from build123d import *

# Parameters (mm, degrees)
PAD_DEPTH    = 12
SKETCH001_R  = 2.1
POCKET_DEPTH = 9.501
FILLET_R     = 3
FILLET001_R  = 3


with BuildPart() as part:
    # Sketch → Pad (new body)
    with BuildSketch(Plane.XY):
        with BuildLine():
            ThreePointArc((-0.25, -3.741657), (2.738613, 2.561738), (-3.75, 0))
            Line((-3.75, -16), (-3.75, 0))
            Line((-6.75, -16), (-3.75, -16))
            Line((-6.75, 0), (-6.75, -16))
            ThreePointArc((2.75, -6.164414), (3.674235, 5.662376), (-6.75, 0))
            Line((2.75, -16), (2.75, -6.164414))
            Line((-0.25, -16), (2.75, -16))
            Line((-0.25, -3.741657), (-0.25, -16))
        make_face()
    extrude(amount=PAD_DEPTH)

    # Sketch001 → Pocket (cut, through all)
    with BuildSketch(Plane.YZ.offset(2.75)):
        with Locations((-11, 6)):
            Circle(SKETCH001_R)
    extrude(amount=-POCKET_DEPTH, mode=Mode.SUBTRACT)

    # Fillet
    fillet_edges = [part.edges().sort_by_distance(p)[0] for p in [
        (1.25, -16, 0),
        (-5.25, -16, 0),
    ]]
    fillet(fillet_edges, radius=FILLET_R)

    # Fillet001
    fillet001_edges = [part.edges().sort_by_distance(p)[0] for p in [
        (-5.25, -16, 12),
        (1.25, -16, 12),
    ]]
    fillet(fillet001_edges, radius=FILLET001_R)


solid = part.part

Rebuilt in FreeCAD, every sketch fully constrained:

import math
import FreeCAD as App
import Part
import Sketcher

V = App.Vector


def edges_at(feature, points):
    """Names of the edges that pass closest to the given points."""
    edges = feature.Shape.Edges
    near = lambda p: min(range(len(edges)), key=lambda i: edges[i].distToShape(Part.Vertex(*p))[0])
    return sorted({f"Edge{near(p) + 1}" for p in points})

doc = App.newDocument("Part")
body = doc.addObject("PartDesign::Body", "Body")

sketch1 = body.newObject("Sketcher::SketchObject", "Sketch")
sketch1.AttachmentSupport = (doc.getObject("XY_Plane"), [""])
sketch1.MapMode = "FlatFace"
sketch1.addGeometry(Part.ArcOfCircle(Part.Circle(V(0, 0, 0), V(0, 0, 1), 3.75), math.radians(-93.822554), math.radians(180.000007)), False)
sketch1.addGeometry(Part.LineSegment(V(-0.25, -3.741657, 0), V(-0.25, -16, 0)), False)
sketch1.addGeometry(Part.LineSegment(V(-0.25, -16, 0), V(2.75, -16, 0)), False)
sketch1.addGeometry(Part.LineSegment(V(2.75, -16, 0), V(2.75, -6.164414, 0)), False)
sketch1.addGeometry(Part.ArcOfCircle(Part.Circle(V(0, 0, 0), V(0, 0, 1), 6.75), math.radians(-65.957926), math.radians(180.000002)), False)
sketch1.addGeometry(Part.LineSegment(V(-6.75, 0, 0), V(-6.75, -16, 0)), False)
sketch1.addGeometry(Part.LineSegment(V(-6.75, -16, 0), V(-3.75, -16, 0)), False)
sketch1.addGeometry(Part.LineSegment(V(-3.75, -16, 0), V(-3.75, 0, 0)), False)
sketch1.addConstraint(Sketcher.Constraint("Coincident", 0, 1, 1, 1))
sketch1.addConstraint(Sketcher.Constraint("Coincident", 1, 2, 2, 1))
sketch1.addConstraint(Sketcher.Constraint("Coincident", 2, 2, 3, 1))
sketch1.addConstraint(Sketcher.Constraint("Coincident", 3, 2, 4, 1))
sketch1.addConstraint(Sketcher.Constraint("Tangent", 4, 2, 5, 1))
sketch1.addConstraint(Sketcher.Constraint("Coincident", 5, 2, 6, 1))
sketch1.addConstraint(Sketcher.Constraint("Coincident", 6, 2, 7, 1))
sketch1.addConstraint(Sketcher.Constraint("Tangent", 7, 2, 0, 2))
sketch1.addConstraint(Sketcher.Constraint("Vertical", 1))
sketch1.addConstraint(Sketcher.Constraint("Horizontal", 2))
sketch1.addConstraint(Sketcher.Constraint("Vertical", 3))
sketch1.addConstraint(Sketcher.Constraint("Vertical", 5))
sketch1.addConstraint(Sketcher.Constraint("Horizontal", 6))
sketch1.addConstraint(Sketcher.Constraint("Vertical", 7))
sketch1.addConstraint(Sketcher.Constraint("Coincident", 0, 3, -1, 1))
sketch1.addConstraint(Sketcher.Constraint("Coincident", 4, 3, -1, 1))
sketch1.addConstraint(Sketcher.Constraint("Horizontal", 2, 2, 5, 2))
sketch1.addConstraint(Sketcher.Constraint("Equal", 2, 6))
sketch1.addConstraint(Sketcher.Constraint("DistanceX", 2, 1, 2, 2, 3.0))
sketch1.addConstraint(Sketcher.Constraint("DistanceY", 5, 2, 5, 1, 16.0))
sketch1.addConstraint(Sketcher.Constraint("Radius", 0, 3.75))
sketch1.addConstraint(Sketcher.Constraint("DistanceX", 4, 2, 0, 1, 6.5))
pad1 = body.newObject("PartDesign::Pad", "Pad")
pad1.Profile = sketch1
pad1.Length = 12

sketch2 = body.newObject("Sketcher::SketchObject", "Sketch001")
sketch2.AttachmentSupport = (doc.getObject("YZ_Plane"), [""])
sketch2.MapMode = "FlatFace"
sketch2.AttachmentOffset = App.Placement(V(0, 0, 2.75), App.Rotation())
sketch2.addGeometry(Part.Circle(V(-11, 6, 0), V(0, 0, 1), 2.1), False)
sketch2.addConstraint(Sketcher.Constraint("Diameter", 0, 4.2))
sketch2.addConstraint(Sketcher.Constraint("DistanceX", 0, 3, -1, 1, 11.0))
sketch2.addConstraint(Sketcher.Constraint("DistanceY", -1, 1, 0, 3, 6.0))
pocket1 = body.newObject("PartDesign::Pocket", "Pocket")
pocket1.Profile = sketch2
pocket1.Type = "ThroughAll"
doc.recompute()

fillet = body.newObject("PartDesign::Fillet", "Fillet")
fillet.Base = (pocket1, edges_at(pocket1, [(1.25, -16, 0), (-5.25, -16, 0)]))
fillet.Radius = 3
doc.recompute()

fillet2 = body.newObject("PartDesign::Fillet", "Fillet001")
fillet2.Base = (fillet, edges_at(fillet, [(-5.25, -16, 12), (1.25, -16, 12)]))
fillet2.Radius = 3

doc.recompute()
